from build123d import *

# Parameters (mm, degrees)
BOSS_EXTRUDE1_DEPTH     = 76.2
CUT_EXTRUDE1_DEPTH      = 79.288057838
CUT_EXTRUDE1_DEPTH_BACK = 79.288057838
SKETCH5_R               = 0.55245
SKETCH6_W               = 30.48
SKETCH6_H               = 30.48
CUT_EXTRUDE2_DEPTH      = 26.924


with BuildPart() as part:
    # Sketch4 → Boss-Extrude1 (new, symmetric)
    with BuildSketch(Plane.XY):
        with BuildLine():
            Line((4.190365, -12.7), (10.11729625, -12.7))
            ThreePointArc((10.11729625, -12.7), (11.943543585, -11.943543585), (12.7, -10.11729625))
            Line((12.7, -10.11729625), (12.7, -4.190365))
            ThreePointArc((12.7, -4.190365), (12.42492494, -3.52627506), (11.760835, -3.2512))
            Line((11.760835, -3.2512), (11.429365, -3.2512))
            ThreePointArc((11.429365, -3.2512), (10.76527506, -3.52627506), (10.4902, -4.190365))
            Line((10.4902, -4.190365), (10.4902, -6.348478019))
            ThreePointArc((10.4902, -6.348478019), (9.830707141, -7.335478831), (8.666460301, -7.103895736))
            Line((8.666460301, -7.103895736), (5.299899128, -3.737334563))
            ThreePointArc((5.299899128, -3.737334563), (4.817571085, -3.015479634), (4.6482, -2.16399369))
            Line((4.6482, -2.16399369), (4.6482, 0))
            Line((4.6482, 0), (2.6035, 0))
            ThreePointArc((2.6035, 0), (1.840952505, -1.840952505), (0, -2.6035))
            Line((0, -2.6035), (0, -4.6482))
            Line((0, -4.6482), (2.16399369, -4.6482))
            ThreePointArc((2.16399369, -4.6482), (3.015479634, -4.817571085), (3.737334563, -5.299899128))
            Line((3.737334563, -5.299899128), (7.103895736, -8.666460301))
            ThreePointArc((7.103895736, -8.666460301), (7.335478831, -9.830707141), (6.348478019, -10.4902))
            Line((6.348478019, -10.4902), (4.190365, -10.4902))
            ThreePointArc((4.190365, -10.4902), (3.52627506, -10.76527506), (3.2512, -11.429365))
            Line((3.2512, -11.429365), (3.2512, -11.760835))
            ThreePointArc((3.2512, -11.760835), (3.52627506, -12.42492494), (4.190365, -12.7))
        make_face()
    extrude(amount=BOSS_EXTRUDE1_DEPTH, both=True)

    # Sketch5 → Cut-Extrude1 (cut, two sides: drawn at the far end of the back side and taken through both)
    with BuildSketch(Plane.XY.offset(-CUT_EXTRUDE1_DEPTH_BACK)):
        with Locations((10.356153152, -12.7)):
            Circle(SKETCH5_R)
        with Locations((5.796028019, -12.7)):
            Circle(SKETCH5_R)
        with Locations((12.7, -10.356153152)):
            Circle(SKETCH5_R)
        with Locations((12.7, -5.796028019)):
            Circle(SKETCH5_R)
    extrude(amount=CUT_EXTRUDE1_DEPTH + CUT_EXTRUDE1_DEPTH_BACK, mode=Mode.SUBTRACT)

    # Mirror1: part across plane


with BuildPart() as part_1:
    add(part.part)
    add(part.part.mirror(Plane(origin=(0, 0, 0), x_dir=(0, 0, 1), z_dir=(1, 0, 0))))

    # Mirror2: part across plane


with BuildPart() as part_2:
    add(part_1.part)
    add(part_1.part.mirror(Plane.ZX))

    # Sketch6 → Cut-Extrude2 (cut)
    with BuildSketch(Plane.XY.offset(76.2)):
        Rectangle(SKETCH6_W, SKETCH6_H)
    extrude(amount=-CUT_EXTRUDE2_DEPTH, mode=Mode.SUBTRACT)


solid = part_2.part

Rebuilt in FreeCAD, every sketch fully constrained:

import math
import FreeCAD as App
import Part
import Sketcher
Q = App.Units.Quantity


def add_polygon(sketch, points):
    """Adds a closed chain of lines whose ends are joined by coincident constraints."""
    first, n = sketch.GeometryCount, len(points)
    for a, b in zip(points, points[1:] + points[:1]):
        sketch.addGeometry(Part.LineSegment(App.Vector(*a, 0), App.Vector(*b, 0)), False)
    for i in range(n):
        sketch.addConstraint(Sketcher.Constraint("Coincident", first + i, 2, first + (i + 1) % n, 1))

doc = App.newDocument("Part")
body = doc.addObject("PartDesign::Body", "Body")

# Sketch on XY plane
sketch1 = body.newObject("Sketcher::SketchObject", "Sketch")
sketch1.AttachmentSupport = (doc.getObject("XY_Plane"), [""])
sketch1.MapMode = "FlatFace"
sketch1.addGeometry(Part.LineSegment(App.Vector(4.190365, -12.7, 0), App.Vector(10.117296, -12.7, 0)), False)
sketch1.addGeometry(Part.ArcOfCircle(Part.Circle(App.Vector(10.117296, -10.117296, 0), App.Vector(0, 0, 1), 2.582704), math.radians(-90), math.radians(0)), False)
sketch1.addGeometry(Part.LineSegment(App.Vector(12.7, -10.117296, 0), App.Vector(12.7, -4.190365, 0)), False)
sketch1.addGeometry(Part.ArcOfCircle(Part.Circle(App.Vector(11.760835, -4.190365, 0), App.Vector(0, 0, 1), 0.939165), math.radians(0), math.radians(90)), False)
sketch1.addGeometry(Part.LineSegment(App.Vector(11.760835, -3.2512, 0), App.Vector(11.429365, -3.2512, 0)), False)
sketch1.addGeometry(Part.ArcOfCircle(Part.Circle(App.Vector(11.429365, -4.190365, 0), App.Vector(0, 0, 1), 0.939165), math.radians(90), math.radians(180)), False)
sketch1.addGeometry(Part.LineSegment(App.Vector(10.4902, -4.190365, 0), App.Vector(10.4902, -6.348478, 0)), False)
sketch1.addGeometry(Part.ArcOfCircle(Part.Circle(App.Vector(9.421878, -6.348478, 0), App.Vector(0, 0, 1), 1.068322), math.radians(-135), math.radians(0)), False)
sketch1.addGeometry(Part.LineSegment(App.Vector(8.66646, -7.103896, 0), App.Vector(5.299899, -3.737335, 0)), False)
sketch1.addGeometry(Part.ArcOfCircle(Part.Circle(App.Vector(6.87324, -2.163994, 0), App.Vector(0, 0, 1), 2.22504), math.radians(-180), math.radians(-135)), False)
sketch1.addGeometry(Part.LineSegment(App.Vector(4.6482, -2.163994, 0), App.Vector(4.6482, 0, 0)), False)
sketch1.addGeometry(Part.LineSegment(App.Vector(4.6482, 0, 0), App.Vector(2.6035, 0, 0)), False)
sketch1.addGeometry(Part.ArcOfCircle(Part.Circle(App.Vector(0, 0, 0), App.Vector(0, 0, 1), 2.6035), math.radians(-90), math.radians(0)), False)
sketch1.addGeometry(Part.LineSegment(App.Vector(0, -2.6035, 0), App.Vector(0, -4.6482, 0)), False)
sketch1.addGeometry(Part.LineSegment(App.Vector(0, -4.6482, 0), App.Vector(2.163994, -4.6482, 0)), False)
sketch1.addGeometry(Part.ArcOfCircle(Part.Circle(App.Vector(2.163994, -6.87324, 0), App.Vector(0, 0, 1), 2.22504), math.radians(45), math.radians(90)), False)
sketch1.addGeometry(Part.LineSegment(App.Vector(3.737335, -5.299899, 0), App.Vector(7.103896, -8.66646, 0)), False)
sketch1.addGeometry(Part.ArcOfCircle(Part.Circle(App.Vector(6.348478, -9.421878, 0), App.Vector(0, 0, 1), 1.068322), math.radians(-90), math.radians(45)), False)
sketch1.addGeometry(Part.LineSegment(App.Vector(6.348478, -10.4902, 0), App.Vector(4.190365, -10.4902, 0)), False)
sketch1.addGeometry(Part.ArcOfCircle(Part.Circle(App.Vector(4.190365, -11.429365, 0), App.Vector(0, 0, 1), 0.939165), math.radians(90), math.radians(180)), False)
sketch1.addGeometry(Part.LineSegment(App.Vector(3.2512, -11.429365, 0), App.Vector(3.2512, -11.760835, 0)), False)
sketch1.addGeometry(Part.ArcOfCircle(Part.Circle(App.Vector(4.190365, -11.760835, 0), App.Vector(0, 0, 1), 0.939165), math.radians(-180), math.radians(-90)), False)
sketch1.addConstraint(Sketcher.Constraint("Tangent", 0, 2, 1, 1))
sketch1.addConstraint(Sketcher.Constraint("Tangent", 1, 2, 2, 1))
sketch1.addConstraint(Sketcher.Constraint("Tangent", 2, 2, 3, 1))
sketch1.addConstraint(Sketcher.Constraint("Tangent", 3, 2, 4, 1))
sketch1.addConstraint(Sketcher.Constraint("Tangent", 4, 2, 5, 1))
sketch1.addConstraint(Sketcher.Constraint("Tangent", 5, 2, 6, 1))
sketch1.addConstraint(Sketcher.Constraint("Tangent", 6, 2, 7, 2))
sketch1.addConstraint(Sketcher.Constraint("Tangent", 7, 1, 8, 1))
sketch1.addConstraint(Sketcher.Constraint("Tangent", 8, 2, 9, 2))
sketch1.addConstraint(Sketcher.Constraint("Tangent", 9, 1, 10, 1))
sketch1.addConstraint(Sketcher.Constraint("Coincident", 10, 2, 11, 1))
sketch1.addConstraint(Sketcher.Constraint("Coincident", 11, 2, 12, 2))
sketch1.addConstraint(Sketcher.Constraint("Coincident", 12, 1, 13, 1))
sketch1.addConstraint(Sketcher.Constraint("Coincident", 13, 2, 14, 1))
sketch1.addConstraint(Sketcher.Constraint("Tangent", 14, 2, 15, 2))
sketch1.addConstraint(Sketcher.Constraint("Tangent", 15, 1, 16, 1))
sketch1.addConstraint(Sketcher.Constraint("Tangent", 16, 2, 17, 2))
sketch1.addConstraint(Sketcher.Constraint("Tangent", 17, 1, 18, 1))
sketch1.addConstraint(Sketcher.Constraint("Tangent", 18, 2, 19, 1))
sketch1.addConstraint(Sketcher.Constraint("Tangent", 19, 2, 20, 1))
sketch1.addConstraint(Sketcher.Constraint("Tangent", 20, 2, 21, 1))
sketch1.addConstraint(Sketcher.Constraint("Tangent", 21, 2, 0, 1))
sketch1.addConstraint(Sketcher.Constraint("Horizontal", 0))
sketch1.addConstraint(Sketcher.Constraint("Vertical", 2))
sketch1.addConstraint(Sketcher.Constraint("Horizontal", 4))
sketch1.addConstraint(Sketcher.Constraint("Vertical", 6))
sketch1.addConstraint(Sketcher.Constraint("Vertical", 10))
sketch1.addConstraint(Sketcher.Constraint("Horizontal", 11))
sketch1.addConstraint(Sketcher.Constraint("Vertical", 13))
sketch1.addConstraint(Sketcher.Constraint("Horizontal", 14))
sketch1.addConstraint(Sketcher.Constraint("Horizontal", 18))
sketch1.addConstraint(Sketcher.Constraint("Vertical", 20))
sketch1.addConstraint(Sketcher.Constraint("Coincident", 12, 3, -1, 1))
sketch1.addConstraint(Sketcher.Constraint("Equal", 3, 5))
sketch1.addConstraint(Sketcher.Constraint("Equal", 9, 15))
sketch1.addConstraint(Sketcher.Constraint("Equal", 7, 17))
sketch1.addConstraint(Sketcher.Constraint("Equal", 5, 19))
sketch1.addConstraint(Sketcher.Constraint("Equal", 19, 21))
sketch1.addConstraint(Sketcher.Constraint("PointOnObject", 10, 2, -1))
sketch1.addConstraint(Sketcher.Constraint("PointOnObject", 12, 1, -2))
sketch1.addConstraint(Sketcher.Constraint("Parallel", 8, 16))
sketch1.addConstraint(Sketcher.Constraint("Equal", 0, 2))
sketch1.addConstraint(Sketcher.Constraint("Equal", 18, 6))
sketch1.addConstraint(Sketcher.Constraint("Equal", 14, 10))
sketch1.addConstraint(Sketcher.Constraint("Equal", 11, 13))
sketch1.addConstraint(Sketcher.Constraint("Equal", 4, 20))
sketch1.addConstraint(Sketcher.Constraint("Equal", 8, 16))
sketch1.addConstraint(Sketcher.Constraint("DistanceY", 0, 2, -1, 1, Q("0.5 in")))
sketch1.addConstraint(Sketcher.Constraint("Radius", 9, Q("0.0876 in")))
sketch1.addConstraint(Sketcher.Constraint("Radius", 12, Q("0.1025 in")))
sketch1.addConstraint(Sketcher.Constraint("DistanceX", 9, 1, 5, 2, Q("0.23 in")))
sketch1.addConstraint(Sketcher.Constraint("DistanceX", 11, 2, 11, 1, Q("0.0805 in")))
sketch1.addConstraint(Sketcher.Constraint("DistanceY", 3, 2, -1, 1, Q("0.128 in")))
sketch1.addConstraint(Sketcher.Constraint("Radius", 7, 1.068322))
sketch1.addConstraint(Sketcher.Constraint("DistanceX", 17, 3, 7, 3, Q("0.121 in")))
sketch1.addConstraint(Sketcher.Constraint("Radius", 1, 2.582704))
sketch1.addConstraint(Sketcher.Constraint("Radius", 3, 0.939165))
pad1 = body.newObject("PartDesign::Pad", "Pad")
pad1.Profile = sketch1
pad1.Length = Q("6 in")
pad1.Midplane = True

# Sketch on XY plane
sketch2 = body.newObject("Sketcher::SketchObject", "Sketch001")
sketch2.AttachmentSupport = (doc.getObject("XY_Plane"), [""])
sketch2.MapMode = "FlatFace"
sketch2.addGeometry(Part.Circle(App.Vector(10.356153, -12.7, 0), App.Vector(0, 0, 1), 0.55245), False)
sketch2.addGeometry(Part.Circle(App.Vector(5.796028, -12.7, 0), App.Vector(0, 0, 1), 0.55245), False)
sketch2.addGeometry(Part.Circle(App.Vector(12.7, -10.356153, 0), App.Vector(0, 0, 1), 0.55245), False)
sketch2.addGeometry(Part.Circle(App.Vector(12.7, -5.796028, 0), App.Vector(0, 0, 1), 0.55245), False)
sketch2.addConstraint(Sketcher.Constraint("Equal", 0, 1))
sketch2.addConstraint(Sketcher.Constraint("Equal", 1, 2))
sketch2.addConstraint(Sketcher.Constraint("Equal", 2, 3))
sketch2.addConstraint(Sketcher.Constraint("Horizontal", 0, 3, 1, 3))
sketch2.addConstraint(Sketcher.Constraint("Vertical", 2, 3, 3, 3))
sketch2.addConstraint(Sketcher.Constraint("Diameter", 0, Q("0.0435 in")))
sketch2.addConstraint(Sketcher.Constraint("DistanceY", 0, 3, -1, 1, Q("0.5 in")))
sketch2.addConstraint(Sketcher.Constraint("DistanceX", -1, 1, 2, 3, Q("0.5 in")))
sketch2.addConstraint(Sketcher.Constraint("DistanceX", -1, 1, 1, 3, 5.796028))
sketch2.addConstraint(Sketcher.Constraint("DistanceY", 3, 3, -1, 1, 5.796028))
sketch2.addConstraint(Sketcher.Constraint("DistanceX", -1, 1, 0, 3, 10.356153))
sketch2.addConstraint(Sketcher.Constraint("DistanceY", 2, 3, -1, 1, 10.356153))
pocket1 = body.newObject("PartDesign::Pocket", "Pocket")
pocket1.Profile = sketch2
pocket1.Type = "ThroughAll"
pocket1.Midplane = True
body2 = doc.addObject("PartDesign::Body", "Body001")
doc.recompute()

body2.BaseFeature = body
doc.recompute()

mirroring = doc.addObject("Part::Mirroring", "Mirroring")
mirroring.Source = body
mirroring.Base = App.Vector(0, 0, 0)
mirroring.Normal = App.Vector(1, 0, 0)
body3 = doc.addObject("PartDesign::Body", "Body002")
body3.BaseFeature = mirroring
boolean = body2.newObject("PartDesign::Boolean", "Boolean")
boolean.Type = "Fuse"
boolean.addObjects([body3])
doc.recompute()
body4 = doc.addObject("PartDesign::Body", "Body003")
doc.recompute()

body4.BaseFeature = body2
doc.recompute()

mirroring2 = doc.addObject("Part::Mirroring", "Mirroring001")
mirroring2.Source = body2
mirroring2.Base = App.Vector(0, 0, 0)
mirroring2.Normal = App.Vector(0, 1, 0)
body5 = doc.addObject("PartDesign::Body", "Body004")
body5.BaseFeature = mirroring2
boolean2 = body4.newObject("PartDesign::Boolean", "Boolean001")
boolean2.Type = "Fuse"
boolean2.addObjects([body5])
doc.recompute()

# Sketch on XY plane
sketch3 = body4.newObject("Sketcher::SketchObject", "Sketch002")
sketch3.AttachmentSupport = (doc.getObject("XY_Plane003"), [""])
sketch3.MapMode = "FlatFace"
sketch3.AttachmentOffset = App.Placement(App.Vector(0, 0, 3 * 25.4), App.Rotation())
add_polygon(sketch3, [(-15.24, 15.24), (-15.24, -15.24), (15.24, -15.24), (15.24, 15.24)])  # lines 0-3
sketch3.addConstraint(Sketcher.Constraint("Vertical", 0))
sketch3.addConstraint(Sketcher.Constraint("Horizontal", 1))
sketch3.addConstraint(Sketcher.Constraint("Vertical", 2))
sketch3.addConstraint(Sketcher.Constraint("Horizontal", 3))
sketch3.addConstraint(Sketcher.Constraint("Symmetric", 0, 2, 2, 2, -1, 1))
sketch3.addConstraint(Sketcher.Constraint("Equal", 3, 0))
sketch3.addConstraint(Sketcher.Constraint("DistanceX", 1, 1, 1, 2, Q("1.2 in")))
pocket2 = body4.newObject("PartDesign::Pocket", "Pocket001")
pocket2.Profile = sketch3
pocket2.Length = Q("1.06 in")
mirroring.Visibility = False
mirroring2.Visibility = False

doc.recompute()
